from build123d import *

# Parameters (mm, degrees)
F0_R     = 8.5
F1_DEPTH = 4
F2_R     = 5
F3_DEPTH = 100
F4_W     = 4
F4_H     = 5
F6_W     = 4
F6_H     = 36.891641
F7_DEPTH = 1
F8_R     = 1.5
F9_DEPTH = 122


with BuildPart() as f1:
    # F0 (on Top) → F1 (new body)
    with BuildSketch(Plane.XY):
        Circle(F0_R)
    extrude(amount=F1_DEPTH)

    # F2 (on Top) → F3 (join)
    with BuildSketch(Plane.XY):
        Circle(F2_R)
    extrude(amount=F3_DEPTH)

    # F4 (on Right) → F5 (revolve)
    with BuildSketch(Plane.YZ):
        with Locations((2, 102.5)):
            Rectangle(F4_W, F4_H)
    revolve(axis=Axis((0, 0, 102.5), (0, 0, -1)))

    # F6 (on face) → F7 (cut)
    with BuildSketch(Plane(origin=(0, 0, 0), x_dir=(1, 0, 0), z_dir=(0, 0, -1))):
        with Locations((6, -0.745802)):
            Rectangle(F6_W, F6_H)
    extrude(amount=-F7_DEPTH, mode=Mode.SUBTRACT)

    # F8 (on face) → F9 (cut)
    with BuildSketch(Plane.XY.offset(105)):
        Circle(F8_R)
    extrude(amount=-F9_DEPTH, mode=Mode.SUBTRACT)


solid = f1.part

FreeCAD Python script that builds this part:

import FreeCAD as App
import Part
import Sketcher

V = App.Vector
Q = App.Units.Quantity

doc = App.newDocument("Part")
body = doc.addObject("PartDesign::Body", "Body")

# Sketch on XY plane
sketch1 = doc.addObject("Sketcher::SketchObject", "Sketch")
body.addObject(sketch1)
sketch1.AttachmentSupport = (doc.XY_Plane, [""])
sketch1.MapMode = "FlatFace"
sketch1.addGeometry(Part.Circle(V(0, 0, 0), V(0, 0, 1), 8), False)
sketch1.addConstraint(Sketcher.Constraint("Coincident", 0, 3, -1, 1))
sketch1.addConstraint(Sketcher.Constraint("Diameter", 0, Q("17 mm")))
pad1 = doc.addObject("PartDesign::Pad", "Pad")
body.addObject(pad1)
pad1.Profile = sketch1
pad1.Length = 4

# Sketch on XY plane
sketch2 = doc.addObject("Sketcher::SketchObject", "Sketch001")
body.addObject(sketch2)
sketch2.AttachmentSupport = (doc.XY_Plane, [""])
sketch2.MapMode = "FlatFace"
sketch2.addGeometry(Part.Circle(V(0, 0, 0), V(0, 0, 1), 5), False)
sketch2.addConstraint(Sketcher.Constraint("Coincident", 0, 3, -1, 1))
sketch2.addConstraint(Sketcher.Constraint("Diameter", 0, Q("10 mm")))
pad2 = doc.addObject("PartDesign::Pad", "Pad001")
body.addObject(pad2)
pad2.Profile = sketch2
pad2.Length = 100

# Sketch on YZ plane
sketch3 = doc.addObject("Sketcher::SketchObject", "Sketch002")
body.addObject(sketch3)
sketch3.AttachmentSupport = (doc.YZ_Plane, [""])
sketch3.MapMode = "FlatFace"
sketch3.addGeometry(Part.LineSegment(V(0, 105, 0), V(0, 100, 0)), False)
sketch3.addGeometry(Part.LineSegment(V(0, 100, 0), V(4, 100, 0)), False)
sketch3.addGeometry(Part.LineSegment(V(4, 100, 0), V(4, 105, 0)), False)
sketch3.addGeometry(Part.LineSegment(V(4, 105, 0), V(0, 105, 0)), False)
sketch3.addConstraint(Sketcher.Constraint("Coincident", 0, 2, 1, 1))
sketch3.addConstraint(Sketcher.Constraint("Coincident", 1, 2, 2, 1))
sketch3.addConstraint(Sketcher.Constraint("Coincident", 2, 2, 3, 1))
sketch3.addConstraint(Sketcher.Constraint("Coincident", 3, 2, 0, 1))
sketch3.addConstraint(Sketcher.Constraint("Vertical", 0))
sketch3.addConstraint(Sketcher.Constraint("Horizontal", 1))
sketch3.addConstraint(Sketcher.Constraint("Vertical", 2))
sketch3.addConstraint(Sketcher.Constraint("Horizontal", 3))
sketch3.addConstraint(Sketcher.Constraint("PointOnObject", 0, 2, -2))
sketch3.addConstraint(Sketcher.Constraint("DistanceX", 1, 1, 1, 2, Q("4 mm")))
sketch3.addConstraint(Sketcher.Constraint("DistanceY", 0, 2, 0, 1, Q("5 mm")))
sketch3.addConstraint(Sketcher.Constraint("DistanceY", -1, 1, 0, 2, Q("100 mm")))
revolution = doc.addObject("PartDesign::Revolution", "Revolution")
body.addObject(revolution)
revolution.Profile = sketch3
revolution.ReferenceAxis = (sketch3, ["V_Axis"])
revolution.Angle = 360

# Sketch on XY plane
sketch4 = doc.addObject("Sketcher::SketchObject", "Sketch003")
body.addObject(sketch4)
sketch4.AttachmentSupport = (doc.XY_Plane, [""])
sketch4.MapMode = "FlatFace"
sketch4.addGeometry(Part.LineSegment(V(4, -17.7, 0), V(4, 19.2, 0)), False)
sketch4.addGeometry(Part.LineSegment(V(4, 19.2, 0), V(8, 19.2, 0)), False)
sketch4.addGeometry(Part.LineSegment(V(8, 19.2, 0), V(8, -17.7, 0)), False)
sketch4.addGeometry(Part.LineSegment(V(8, -17.7, 0), V(4, -17.7, 0)), False)
sketch4.addConstraint(Sketcher.Constraint("Coincident", 0, 2, 1, 1))
sketch4.addConstraint(Sketcher.Constraint("Coincident", 1, 2, 2, 1))
sketch4.addConstraint(Sketcher.Constraint("Coincident", 2, 2, 3, 1))
sketch4.addConstraint(Sketcher.Constraint("Coincident", 3, 2, 0, 1))
sketch4.addConstraint(Sketcher.Constraint("Vertical", 0))
sketch4.addConstraint(Sketcher.Constraint("Horizontal", 1))
sketch4.addConstraint(Sketcher.Constraint("Vertical", 2))
sketch4.addConstraint(Sketcher.Constraint("Horizontal", 3))
sketch4.addConstraint(Sketcher.Constraint("DistanceX", 1, 1, 1, 2, Q("4 mm")))
sketch4.addConstraint(Sketcher.Constraint("DistanceX", -1, 1, 0, 2, Q("4 mm")))
sketch4.addConstraint(Sketcher.Constraint("DistanceY", 0, 1, 0, 2, Q("36.891641 mm")))
sketch4.addConstraint(Sketcher.Constraint("DistanceY", 2, 2, -1, 1, Q("17.700018 mm")))
pocket1 = doc.addObject("PartDesign::Pocket", "Pocket")
body.addObject(pocket1)
pocket1.Profile = sketch4
pocket1.Length = 1
pocket1.Reversed = True

# Sketch on XY plane
sketch5 = doc.addObject("Sketcher::SketchObject", "Sketch004")
body.addObject(sketch5)
sketch5.AttachmentSupport = (doc.XY_Plane, [""])
sketch5.MapMode = "FlatFace"
sketch5.AttachmentOffset = App.Placement(V(0, 0, 105), App.Rotation())
sketch5.addGeometry(Part.Circle(V(0, 0, 0), V(0, 0, 1), 1.5), False)
sketch5.addConstraint(Sketcher.Constraint("Coincident", 0, 3, -1, 1))
sketch5.addConstraint(Sketcher.Constraint("Diameter", 0, Q("3 mm")))
pocket2 = doc.addObject("PartDesign::Pocket", "Pocket001")
body.addObject(pocket2)
pocket2.Profile = sketch5
pocket2.Length = 122

doc.recompute()
